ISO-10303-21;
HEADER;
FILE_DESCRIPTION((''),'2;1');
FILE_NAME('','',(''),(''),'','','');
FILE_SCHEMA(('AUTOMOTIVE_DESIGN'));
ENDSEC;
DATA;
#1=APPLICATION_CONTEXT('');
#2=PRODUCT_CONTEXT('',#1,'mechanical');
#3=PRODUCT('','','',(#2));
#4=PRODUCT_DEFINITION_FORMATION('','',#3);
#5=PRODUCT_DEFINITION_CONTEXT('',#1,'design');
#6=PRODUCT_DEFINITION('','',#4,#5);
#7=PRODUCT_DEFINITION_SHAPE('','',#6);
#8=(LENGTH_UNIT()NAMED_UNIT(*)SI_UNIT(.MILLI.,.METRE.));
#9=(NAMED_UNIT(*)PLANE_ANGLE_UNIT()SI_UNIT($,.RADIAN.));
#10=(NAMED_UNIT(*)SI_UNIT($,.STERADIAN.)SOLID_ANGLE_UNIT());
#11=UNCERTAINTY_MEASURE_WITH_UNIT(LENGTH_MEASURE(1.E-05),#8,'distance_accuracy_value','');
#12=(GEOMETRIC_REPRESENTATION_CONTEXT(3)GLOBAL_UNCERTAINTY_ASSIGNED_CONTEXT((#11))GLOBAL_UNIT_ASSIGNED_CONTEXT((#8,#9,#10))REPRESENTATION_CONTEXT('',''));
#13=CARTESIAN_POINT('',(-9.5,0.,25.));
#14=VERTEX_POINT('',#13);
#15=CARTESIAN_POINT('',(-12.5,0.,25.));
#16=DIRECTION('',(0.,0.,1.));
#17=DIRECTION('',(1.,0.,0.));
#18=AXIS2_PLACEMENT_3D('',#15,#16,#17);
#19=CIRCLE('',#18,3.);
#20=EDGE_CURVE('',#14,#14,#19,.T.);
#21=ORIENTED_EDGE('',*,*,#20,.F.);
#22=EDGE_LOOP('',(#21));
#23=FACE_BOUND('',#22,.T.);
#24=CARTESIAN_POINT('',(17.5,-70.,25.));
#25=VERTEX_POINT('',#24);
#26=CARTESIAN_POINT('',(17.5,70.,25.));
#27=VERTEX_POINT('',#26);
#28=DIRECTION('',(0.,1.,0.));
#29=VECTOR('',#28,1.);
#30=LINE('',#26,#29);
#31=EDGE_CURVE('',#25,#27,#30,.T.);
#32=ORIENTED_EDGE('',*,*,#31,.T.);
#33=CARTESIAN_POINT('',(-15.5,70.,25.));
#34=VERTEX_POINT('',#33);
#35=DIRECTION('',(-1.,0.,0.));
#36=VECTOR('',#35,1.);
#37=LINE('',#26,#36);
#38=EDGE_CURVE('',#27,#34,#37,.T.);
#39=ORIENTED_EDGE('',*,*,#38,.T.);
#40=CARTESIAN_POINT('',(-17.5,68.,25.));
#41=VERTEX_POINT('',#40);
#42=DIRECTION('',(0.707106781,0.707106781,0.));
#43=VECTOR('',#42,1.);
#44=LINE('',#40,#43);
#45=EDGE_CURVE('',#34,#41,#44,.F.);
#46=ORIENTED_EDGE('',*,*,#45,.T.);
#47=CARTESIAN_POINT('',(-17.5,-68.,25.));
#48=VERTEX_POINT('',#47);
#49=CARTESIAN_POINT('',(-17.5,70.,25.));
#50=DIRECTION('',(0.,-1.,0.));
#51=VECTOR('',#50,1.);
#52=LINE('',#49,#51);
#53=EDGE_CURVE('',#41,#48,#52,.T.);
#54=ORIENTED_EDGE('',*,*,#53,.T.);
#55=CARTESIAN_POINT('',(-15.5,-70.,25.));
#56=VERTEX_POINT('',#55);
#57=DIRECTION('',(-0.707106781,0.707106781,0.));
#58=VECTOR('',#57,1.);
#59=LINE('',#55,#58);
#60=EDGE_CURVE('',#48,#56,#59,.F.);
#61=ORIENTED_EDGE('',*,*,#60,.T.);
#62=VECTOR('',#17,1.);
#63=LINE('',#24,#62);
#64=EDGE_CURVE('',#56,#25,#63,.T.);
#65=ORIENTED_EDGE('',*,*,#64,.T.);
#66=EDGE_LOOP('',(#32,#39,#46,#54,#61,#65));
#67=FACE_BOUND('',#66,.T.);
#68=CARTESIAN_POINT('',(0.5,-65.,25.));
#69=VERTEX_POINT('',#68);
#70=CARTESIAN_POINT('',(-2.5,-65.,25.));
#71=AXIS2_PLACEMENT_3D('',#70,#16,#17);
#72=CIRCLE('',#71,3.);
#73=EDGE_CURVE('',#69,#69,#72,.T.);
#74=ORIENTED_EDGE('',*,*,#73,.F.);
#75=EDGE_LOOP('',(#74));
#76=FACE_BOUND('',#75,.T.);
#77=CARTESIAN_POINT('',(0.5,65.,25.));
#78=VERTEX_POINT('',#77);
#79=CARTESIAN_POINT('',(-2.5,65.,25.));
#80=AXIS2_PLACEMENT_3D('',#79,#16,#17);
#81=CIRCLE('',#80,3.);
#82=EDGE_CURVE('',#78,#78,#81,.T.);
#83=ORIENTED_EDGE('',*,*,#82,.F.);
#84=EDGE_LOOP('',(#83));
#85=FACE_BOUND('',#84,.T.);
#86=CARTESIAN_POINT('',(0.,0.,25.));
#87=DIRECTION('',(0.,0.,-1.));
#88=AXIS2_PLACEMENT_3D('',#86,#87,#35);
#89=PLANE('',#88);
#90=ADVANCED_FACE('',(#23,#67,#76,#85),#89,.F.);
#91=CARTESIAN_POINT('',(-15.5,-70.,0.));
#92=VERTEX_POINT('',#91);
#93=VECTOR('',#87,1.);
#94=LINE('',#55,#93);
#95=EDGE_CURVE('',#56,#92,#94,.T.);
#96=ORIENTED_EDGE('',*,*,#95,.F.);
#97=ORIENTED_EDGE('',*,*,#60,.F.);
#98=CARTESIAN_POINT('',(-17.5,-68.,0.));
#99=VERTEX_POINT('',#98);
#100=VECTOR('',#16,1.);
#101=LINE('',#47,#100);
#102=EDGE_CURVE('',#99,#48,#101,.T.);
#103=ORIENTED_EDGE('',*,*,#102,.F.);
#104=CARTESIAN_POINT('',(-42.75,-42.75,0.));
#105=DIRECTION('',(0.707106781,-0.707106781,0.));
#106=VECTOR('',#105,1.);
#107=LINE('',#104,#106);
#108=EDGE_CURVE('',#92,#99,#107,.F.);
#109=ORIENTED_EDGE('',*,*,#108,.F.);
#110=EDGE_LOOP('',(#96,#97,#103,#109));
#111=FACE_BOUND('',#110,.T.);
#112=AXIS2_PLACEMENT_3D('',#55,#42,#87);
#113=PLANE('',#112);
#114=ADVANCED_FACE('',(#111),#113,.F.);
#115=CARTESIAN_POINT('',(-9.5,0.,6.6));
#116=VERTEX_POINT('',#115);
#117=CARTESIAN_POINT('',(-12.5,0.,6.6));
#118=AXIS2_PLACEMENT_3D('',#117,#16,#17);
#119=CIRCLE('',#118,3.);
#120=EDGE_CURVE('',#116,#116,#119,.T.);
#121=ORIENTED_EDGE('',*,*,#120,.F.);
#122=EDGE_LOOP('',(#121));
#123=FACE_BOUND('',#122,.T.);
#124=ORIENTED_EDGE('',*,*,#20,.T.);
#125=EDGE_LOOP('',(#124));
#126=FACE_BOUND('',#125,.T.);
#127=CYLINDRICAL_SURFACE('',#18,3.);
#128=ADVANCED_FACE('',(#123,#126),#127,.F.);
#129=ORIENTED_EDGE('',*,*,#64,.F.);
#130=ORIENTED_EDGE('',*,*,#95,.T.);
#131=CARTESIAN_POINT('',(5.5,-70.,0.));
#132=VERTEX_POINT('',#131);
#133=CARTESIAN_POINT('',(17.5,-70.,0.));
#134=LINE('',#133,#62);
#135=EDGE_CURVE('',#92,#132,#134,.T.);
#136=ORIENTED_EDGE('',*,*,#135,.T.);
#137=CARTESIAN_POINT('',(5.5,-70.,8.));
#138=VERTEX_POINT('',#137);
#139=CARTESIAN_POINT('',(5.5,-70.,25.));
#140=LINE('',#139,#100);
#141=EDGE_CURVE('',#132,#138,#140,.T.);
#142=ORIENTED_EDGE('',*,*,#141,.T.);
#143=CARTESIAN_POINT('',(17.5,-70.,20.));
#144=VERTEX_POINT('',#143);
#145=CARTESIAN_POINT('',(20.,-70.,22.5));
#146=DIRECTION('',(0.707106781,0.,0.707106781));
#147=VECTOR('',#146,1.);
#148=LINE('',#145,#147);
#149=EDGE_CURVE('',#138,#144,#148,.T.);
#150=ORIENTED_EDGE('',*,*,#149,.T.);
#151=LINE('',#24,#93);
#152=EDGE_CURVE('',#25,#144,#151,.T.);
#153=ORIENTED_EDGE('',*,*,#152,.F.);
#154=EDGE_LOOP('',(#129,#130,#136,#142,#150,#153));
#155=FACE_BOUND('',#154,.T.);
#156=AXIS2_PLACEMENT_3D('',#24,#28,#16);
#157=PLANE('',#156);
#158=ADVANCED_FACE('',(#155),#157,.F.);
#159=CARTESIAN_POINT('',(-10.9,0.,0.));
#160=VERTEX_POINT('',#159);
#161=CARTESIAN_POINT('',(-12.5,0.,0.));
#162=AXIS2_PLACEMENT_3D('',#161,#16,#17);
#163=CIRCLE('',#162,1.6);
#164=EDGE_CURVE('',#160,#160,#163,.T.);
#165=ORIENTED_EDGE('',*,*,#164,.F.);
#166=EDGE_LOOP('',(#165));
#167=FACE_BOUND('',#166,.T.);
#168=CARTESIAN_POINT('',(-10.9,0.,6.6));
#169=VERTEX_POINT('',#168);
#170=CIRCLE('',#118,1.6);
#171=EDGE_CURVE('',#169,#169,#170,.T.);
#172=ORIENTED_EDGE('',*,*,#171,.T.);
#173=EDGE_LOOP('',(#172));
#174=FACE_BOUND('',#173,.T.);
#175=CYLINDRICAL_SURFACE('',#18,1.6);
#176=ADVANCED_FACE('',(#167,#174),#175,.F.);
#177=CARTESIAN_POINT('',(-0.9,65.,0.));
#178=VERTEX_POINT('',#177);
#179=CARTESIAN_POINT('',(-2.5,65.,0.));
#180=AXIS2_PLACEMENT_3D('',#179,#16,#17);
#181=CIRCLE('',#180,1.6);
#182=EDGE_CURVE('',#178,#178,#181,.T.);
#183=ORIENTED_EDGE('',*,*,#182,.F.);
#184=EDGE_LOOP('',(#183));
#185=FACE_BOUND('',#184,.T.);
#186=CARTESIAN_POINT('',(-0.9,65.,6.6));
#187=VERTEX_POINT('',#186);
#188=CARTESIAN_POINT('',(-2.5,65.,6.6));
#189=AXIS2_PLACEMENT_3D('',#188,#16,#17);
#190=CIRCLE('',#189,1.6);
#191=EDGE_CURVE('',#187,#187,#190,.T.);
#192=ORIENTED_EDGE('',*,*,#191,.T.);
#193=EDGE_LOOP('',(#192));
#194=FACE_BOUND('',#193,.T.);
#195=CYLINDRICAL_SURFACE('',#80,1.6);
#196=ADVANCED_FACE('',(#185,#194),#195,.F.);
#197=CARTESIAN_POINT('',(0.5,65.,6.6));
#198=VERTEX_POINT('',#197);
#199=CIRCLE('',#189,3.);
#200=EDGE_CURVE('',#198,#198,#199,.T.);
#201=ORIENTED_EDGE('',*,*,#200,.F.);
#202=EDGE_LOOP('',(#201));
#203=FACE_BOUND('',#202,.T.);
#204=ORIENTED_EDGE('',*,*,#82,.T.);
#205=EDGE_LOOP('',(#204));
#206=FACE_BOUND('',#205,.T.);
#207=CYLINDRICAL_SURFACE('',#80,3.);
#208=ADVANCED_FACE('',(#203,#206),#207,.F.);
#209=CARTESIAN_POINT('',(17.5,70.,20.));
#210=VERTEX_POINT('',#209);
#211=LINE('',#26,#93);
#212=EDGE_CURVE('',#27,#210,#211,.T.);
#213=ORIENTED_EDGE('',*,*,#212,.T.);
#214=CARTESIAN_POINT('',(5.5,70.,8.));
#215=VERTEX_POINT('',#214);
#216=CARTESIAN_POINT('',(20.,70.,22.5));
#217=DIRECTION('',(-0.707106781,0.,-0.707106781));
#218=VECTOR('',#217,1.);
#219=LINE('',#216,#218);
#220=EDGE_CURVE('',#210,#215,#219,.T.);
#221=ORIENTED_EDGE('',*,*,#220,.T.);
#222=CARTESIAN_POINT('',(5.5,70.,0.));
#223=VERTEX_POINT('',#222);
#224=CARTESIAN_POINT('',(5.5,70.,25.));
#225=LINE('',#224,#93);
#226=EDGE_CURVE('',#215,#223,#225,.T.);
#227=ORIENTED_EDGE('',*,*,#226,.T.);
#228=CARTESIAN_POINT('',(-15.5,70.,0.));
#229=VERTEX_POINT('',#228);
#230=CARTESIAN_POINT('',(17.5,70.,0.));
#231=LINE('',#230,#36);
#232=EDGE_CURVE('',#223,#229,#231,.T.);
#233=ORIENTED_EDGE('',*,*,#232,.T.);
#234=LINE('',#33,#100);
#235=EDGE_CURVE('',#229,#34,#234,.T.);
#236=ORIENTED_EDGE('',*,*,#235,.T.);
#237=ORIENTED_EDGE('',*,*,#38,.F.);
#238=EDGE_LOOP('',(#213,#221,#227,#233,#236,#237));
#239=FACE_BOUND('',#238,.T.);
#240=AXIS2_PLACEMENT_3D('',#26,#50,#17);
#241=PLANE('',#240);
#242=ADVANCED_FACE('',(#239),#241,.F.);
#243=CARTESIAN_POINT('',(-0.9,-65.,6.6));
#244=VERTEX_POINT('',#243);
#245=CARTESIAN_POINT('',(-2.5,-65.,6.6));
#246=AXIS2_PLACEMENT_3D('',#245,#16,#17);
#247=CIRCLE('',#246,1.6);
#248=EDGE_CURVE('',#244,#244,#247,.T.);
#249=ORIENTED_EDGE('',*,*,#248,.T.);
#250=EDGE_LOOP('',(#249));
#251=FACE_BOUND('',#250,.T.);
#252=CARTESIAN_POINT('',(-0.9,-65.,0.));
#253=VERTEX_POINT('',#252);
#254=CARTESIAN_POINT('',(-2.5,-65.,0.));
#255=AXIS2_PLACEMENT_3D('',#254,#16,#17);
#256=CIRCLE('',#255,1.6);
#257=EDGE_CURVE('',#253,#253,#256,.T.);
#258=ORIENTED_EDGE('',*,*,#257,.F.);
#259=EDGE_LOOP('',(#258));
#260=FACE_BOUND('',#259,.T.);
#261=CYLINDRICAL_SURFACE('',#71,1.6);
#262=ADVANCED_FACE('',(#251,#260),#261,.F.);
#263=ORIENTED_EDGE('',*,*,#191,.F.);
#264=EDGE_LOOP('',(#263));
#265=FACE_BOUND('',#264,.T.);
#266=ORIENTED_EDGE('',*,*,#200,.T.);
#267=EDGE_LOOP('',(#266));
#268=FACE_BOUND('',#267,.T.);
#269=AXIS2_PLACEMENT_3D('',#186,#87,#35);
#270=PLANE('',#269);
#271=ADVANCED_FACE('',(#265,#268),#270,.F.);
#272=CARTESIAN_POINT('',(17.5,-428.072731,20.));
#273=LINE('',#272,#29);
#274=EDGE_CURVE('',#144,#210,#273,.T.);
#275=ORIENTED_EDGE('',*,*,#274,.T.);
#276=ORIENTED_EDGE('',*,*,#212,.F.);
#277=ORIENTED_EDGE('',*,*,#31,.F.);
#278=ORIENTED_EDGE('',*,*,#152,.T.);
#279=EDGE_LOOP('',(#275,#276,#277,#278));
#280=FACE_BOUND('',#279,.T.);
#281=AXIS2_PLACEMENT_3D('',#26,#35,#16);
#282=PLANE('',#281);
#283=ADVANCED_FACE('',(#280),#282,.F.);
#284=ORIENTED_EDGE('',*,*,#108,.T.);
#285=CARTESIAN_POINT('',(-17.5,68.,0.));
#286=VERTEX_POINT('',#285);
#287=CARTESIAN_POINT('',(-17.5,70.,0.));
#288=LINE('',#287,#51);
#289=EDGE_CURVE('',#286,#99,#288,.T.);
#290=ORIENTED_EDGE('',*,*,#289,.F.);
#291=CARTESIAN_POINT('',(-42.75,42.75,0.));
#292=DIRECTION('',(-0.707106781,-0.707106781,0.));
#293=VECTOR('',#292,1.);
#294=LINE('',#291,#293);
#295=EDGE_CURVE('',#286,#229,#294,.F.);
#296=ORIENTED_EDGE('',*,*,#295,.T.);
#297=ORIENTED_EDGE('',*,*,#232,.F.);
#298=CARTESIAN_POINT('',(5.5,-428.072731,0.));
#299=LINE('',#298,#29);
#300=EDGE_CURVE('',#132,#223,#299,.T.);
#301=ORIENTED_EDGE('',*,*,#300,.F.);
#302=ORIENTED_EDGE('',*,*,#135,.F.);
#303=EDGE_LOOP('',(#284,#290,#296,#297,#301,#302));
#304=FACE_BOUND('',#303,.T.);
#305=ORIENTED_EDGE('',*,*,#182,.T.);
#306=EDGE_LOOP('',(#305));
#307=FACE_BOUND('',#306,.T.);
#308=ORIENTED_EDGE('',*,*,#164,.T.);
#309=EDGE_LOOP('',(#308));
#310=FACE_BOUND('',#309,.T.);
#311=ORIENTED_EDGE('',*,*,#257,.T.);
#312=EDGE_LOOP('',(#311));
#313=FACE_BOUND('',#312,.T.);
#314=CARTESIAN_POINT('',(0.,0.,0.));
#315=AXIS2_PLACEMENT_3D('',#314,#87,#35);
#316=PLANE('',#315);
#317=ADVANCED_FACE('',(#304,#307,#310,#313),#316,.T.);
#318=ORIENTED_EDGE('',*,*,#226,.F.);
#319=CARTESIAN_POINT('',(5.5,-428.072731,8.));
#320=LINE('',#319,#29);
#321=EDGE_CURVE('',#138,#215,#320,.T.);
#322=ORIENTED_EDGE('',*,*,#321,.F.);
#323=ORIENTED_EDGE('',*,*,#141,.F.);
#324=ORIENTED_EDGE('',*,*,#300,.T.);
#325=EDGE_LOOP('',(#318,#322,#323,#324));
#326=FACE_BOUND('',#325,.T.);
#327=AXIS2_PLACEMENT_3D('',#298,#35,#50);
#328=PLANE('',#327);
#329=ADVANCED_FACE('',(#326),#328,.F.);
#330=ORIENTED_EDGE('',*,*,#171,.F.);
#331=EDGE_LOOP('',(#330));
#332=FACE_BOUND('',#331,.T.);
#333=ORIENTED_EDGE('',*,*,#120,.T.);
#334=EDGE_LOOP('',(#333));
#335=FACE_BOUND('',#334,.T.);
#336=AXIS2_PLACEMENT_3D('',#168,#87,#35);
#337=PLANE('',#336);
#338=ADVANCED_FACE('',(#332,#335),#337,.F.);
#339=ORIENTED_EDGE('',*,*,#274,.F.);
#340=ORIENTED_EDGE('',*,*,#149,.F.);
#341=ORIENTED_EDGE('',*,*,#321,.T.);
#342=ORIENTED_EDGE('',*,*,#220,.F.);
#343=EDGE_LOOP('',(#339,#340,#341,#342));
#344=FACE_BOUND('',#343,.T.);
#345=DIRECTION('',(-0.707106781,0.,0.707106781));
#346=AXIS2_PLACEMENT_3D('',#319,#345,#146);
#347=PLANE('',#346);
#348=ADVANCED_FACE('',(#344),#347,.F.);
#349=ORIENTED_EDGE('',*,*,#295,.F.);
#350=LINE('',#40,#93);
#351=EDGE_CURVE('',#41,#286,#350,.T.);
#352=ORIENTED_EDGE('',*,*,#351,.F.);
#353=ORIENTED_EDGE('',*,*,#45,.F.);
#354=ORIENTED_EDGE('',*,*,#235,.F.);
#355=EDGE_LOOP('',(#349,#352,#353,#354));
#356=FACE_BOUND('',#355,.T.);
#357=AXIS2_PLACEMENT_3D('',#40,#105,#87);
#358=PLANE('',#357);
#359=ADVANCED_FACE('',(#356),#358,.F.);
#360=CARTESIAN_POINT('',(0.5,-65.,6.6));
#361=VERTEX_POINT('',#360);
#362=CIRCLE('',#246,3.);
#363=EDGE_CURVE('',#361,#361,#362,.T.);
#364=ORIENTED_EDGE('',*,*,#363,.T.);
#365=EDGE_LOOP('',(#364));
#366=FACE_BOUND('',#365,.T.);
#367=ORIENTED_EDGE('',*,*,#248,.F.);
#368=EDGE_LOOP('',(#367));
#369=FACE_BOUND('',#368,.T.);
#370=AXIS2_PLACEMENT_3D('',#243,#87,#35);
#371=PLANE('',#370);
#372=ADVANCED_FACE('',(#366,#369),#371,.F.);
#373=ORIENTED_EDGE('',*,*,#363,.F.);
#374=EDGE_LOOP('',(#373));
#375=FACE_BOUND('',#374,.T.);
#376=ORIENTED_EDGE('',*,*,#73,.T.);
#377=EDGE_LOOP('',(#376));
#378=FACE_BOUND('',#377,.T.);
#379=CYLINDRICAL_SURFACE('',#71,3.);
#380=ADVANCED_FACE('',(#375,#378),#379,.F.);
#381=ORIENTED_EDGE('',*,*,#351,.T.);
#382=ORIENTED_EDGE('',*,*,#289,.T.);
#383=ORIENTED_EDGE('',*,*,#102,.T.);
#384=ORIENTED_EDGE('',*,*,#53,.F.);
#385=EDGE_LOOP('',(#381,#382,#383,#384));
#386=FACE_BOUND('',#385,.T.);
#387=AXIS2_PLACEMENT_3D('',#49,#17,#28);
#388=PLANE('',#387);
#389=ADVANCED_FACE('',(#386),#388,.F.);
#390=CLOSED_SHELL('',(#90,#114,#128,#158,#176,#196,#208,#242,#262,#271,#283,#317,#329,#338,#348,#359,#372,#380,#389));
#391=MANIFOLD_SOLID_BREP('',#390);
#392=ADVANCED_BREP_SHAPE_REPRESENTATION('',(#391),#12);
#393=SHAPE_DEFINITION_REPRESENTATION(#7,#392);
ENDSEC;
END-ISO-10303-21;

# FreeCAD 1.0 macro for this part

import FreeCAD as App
import Part
import Sketcher
Q = App.Units.Quantity


def edges_at(feature, points):
    """Names of the edges that pass closest to the given points."""
    edges = feature.Shape.Edges
    near = lambda p: min(range(len(edges)), key=lambda i: edges[i].distToShape(Part.Vertex(*p))[0])
    return sorted({f"Edge{near(p) + 1}" for p in points})

doc = App.newDocument("Part")
body = doc.addObject("PartDesign::Body", "Body")

sketch1 = body.newObject("Sketcher::SketchObject", "Sketch")
sketch1.AttachmentSupport = (doc.getObject("XY_Plane"), [""])
sketch1.MapMode = "FlatFace"
sketch1.addGeometry([
    Part.LineSegment(App.Vector(-17.5, 70, 0), App.Vector(-17.5, -70, 0)),
    Part.LineSegment(App.Vector(-17.5, -70, 0), App.Vector(17.5, -70, 0)),
    Part.LineSegment(App.Vector(17.5, -70, 0), App.Vector(17.5, 70, 0)),
    Part.LineSegment(App.Vector(17.5, 70, 0), App.Vector(-17.5, 70, 0)),
], False)
sketch1.addConstraint([
    Sketcher.Constraint("Coincident", 0, 2, 1, 1),
    Sketcher.Constraint("Coincident", 1, 2, 2, 1),
    Sketcher.Constraint("Coincident", 2, 2, 3, 1),
    Sketcher.Constraint("Coincident", 3, 2, 0, 1),
    Sketcher.Constraint("Vertical", 0),
    Sketcher.Constraint("Horizontal", 1),
    Sketcher.Constraint("Vertical", 2),
    Sketcher.Constraint("Horizontal", 3),
    Sketcher.Constraint("Symmetric", 0, 2, 2, 2, -1, 1),
    Sketcher.Constraint("DistanceX", 1, 1, 1, 2, 35.0),
    Sketcher.Constraint("DistanceY", 0, 2, 0, 1, 140.0),
])
pad1 = body.newObject("PartDesign::Pad", "Pad")
pad1.Profile = sketch1
pad1.Length = 25

sketch2 = body.newObject("Sketcher::SketchObject", "Sketch001")
sketch2.AttachmentSupport = (doc.getObject("XZ_Plane"), [""])
sketch2.MapMode = "FlatFace"
sketch2.AttachmentOffset = App.Placement(App.Vector(0, 0, 70), App.Rotation())
sketch2.addGeometry([
    Part.LineSegment(App.Vector(5.5, 8, 0), App.Vector(5.5, -90.622577, 0)),
    Part.LineSegment(App.Vector(5.5, -90.622577, 0), App.Vector(171.671951, -162.987548, 0)),
    Part.LineSegment(App.Vector(171.671951, -162.987548, 0), App.Vector(247.75179, 11.714868, 0)),
    Part.LineSegment(App.Vector(247.75179, 11.714868, 0), App.Vector(81.579839, 84.079839, 0)),
    Part.LineSegment(App.Vector(81.579839, 84.079839, 0), App.Vector(5.5, 8, 0)),
], False)
sketch2.addConstraint([
    Sketcher.Constraint("Coincident", 0, 2, 1, 1),
    Sketcher.Constraint("Coincident", 1, 2, 2, 1),
    Sketcher.Constraint("Coincident", 2, 2, 3, 1),
    Sketcher.Constraint("Coincident", 3, 2, 4, 1),
    Sketcher.Constraint("Coincident", 4, 2, 0, 1),
    Sketcher.Constraint("Vertical", 0),
    Sketcher.Constraint("Perpendicular", 1, 2),
    Sketcher.Constraint("Perpendicular", 2, 3),
    Sketcher.Constraint("Equal", 1, 3),
    Sketcher.Constraint("Angle", 4, Q("-135 deg")),
    Sketcher.Constraint("DistanceY", -1, 1, 4, 2, 8.0),
    Sketcher.Constraint("DistanceX", -1, 1, 0, 2, 5.5),
    Sketcher.Constraint("Distance", 4, 107.59314),
    Sketcher.Constraint("DistanceY", 0, 2, 0, 1, 98.622577),
    Sketcher.Constraint("DistanceX", -1, 1, 1, 2, 171.671951),
])
pocket1 = body.newObject("PartDesign::Pocket", "Pocket")
pocket1.Profile = sketch2
pocket1.Type = "ThroughAll"
pocket1.Midplane = True

sketch3 = body.newObject("Sketcher::SketchObject", "Sketch002")
sketch3.AttachmentSupport = (doc.getObject("XY_Plane"), [""])
sketch3.MapMode = "FlatFace"
sketch3.AttachmentOffset = App.Placement(App.Vector(0, 0, 25), App.Rotation())
sketch3.addGeometry([
    Part.Circle(App.Vector(-2.5, 65, 0), App.Vector(0, 0, 1), 1.6),
    Part.Circle(App.Vector(-12.5, 0, 0), App.Vector(0, 0, 1), 1.6),
    Part.Circle(App.Vector(-2.5, -65, 0), App.Vector(0, 0, 1), 1.6),
], False)
sketch3.addConstraint([
    Sketcher.Constraint("Equal", 0, 1),
    Sketcher.Constraint("Equal", 1, 2),
    Sketcher.Constraint("Symmetric", 0, 3, 2, 3, -1),
    Sketcher.Constraint("PointOnObject", 1, 3, -1),
    Sketcher.Constraint("Diameter", 0, 3.2),
    Sketcher.Constraint("DistanceY", -1, 1, 0, 3, 65.0),
    Sketcher.Constraint("DistanceX", 1, 3, 0, 3, 10.0),
    Sketcher.Constraint("DistanceX", 0, 3, -1, 1, 2.5),
])
doc.recompute()
hole = body.newObject("PartDesign::Hole", "Hole")
hole.Profile = sketch3
hole.ThreadType = "None"
hole.Diameter = 3.2
hole.DepthType = "ThroughAll"
hole.HoleCutType = "Counterbore"
hole.HoleCutDiameter = 6
hole.HoleCutDepth = 18.4
doc.recompute()

chamfer = body.newObject("PartDesign::Chamfer", "Chamfer")
chamfer.Base = (hole, edges_at(hole, [(-17.5, -70, 12.5), (-17.5, 70, 12.5)]))
chamfer.Size = 2

doc.recompute()
